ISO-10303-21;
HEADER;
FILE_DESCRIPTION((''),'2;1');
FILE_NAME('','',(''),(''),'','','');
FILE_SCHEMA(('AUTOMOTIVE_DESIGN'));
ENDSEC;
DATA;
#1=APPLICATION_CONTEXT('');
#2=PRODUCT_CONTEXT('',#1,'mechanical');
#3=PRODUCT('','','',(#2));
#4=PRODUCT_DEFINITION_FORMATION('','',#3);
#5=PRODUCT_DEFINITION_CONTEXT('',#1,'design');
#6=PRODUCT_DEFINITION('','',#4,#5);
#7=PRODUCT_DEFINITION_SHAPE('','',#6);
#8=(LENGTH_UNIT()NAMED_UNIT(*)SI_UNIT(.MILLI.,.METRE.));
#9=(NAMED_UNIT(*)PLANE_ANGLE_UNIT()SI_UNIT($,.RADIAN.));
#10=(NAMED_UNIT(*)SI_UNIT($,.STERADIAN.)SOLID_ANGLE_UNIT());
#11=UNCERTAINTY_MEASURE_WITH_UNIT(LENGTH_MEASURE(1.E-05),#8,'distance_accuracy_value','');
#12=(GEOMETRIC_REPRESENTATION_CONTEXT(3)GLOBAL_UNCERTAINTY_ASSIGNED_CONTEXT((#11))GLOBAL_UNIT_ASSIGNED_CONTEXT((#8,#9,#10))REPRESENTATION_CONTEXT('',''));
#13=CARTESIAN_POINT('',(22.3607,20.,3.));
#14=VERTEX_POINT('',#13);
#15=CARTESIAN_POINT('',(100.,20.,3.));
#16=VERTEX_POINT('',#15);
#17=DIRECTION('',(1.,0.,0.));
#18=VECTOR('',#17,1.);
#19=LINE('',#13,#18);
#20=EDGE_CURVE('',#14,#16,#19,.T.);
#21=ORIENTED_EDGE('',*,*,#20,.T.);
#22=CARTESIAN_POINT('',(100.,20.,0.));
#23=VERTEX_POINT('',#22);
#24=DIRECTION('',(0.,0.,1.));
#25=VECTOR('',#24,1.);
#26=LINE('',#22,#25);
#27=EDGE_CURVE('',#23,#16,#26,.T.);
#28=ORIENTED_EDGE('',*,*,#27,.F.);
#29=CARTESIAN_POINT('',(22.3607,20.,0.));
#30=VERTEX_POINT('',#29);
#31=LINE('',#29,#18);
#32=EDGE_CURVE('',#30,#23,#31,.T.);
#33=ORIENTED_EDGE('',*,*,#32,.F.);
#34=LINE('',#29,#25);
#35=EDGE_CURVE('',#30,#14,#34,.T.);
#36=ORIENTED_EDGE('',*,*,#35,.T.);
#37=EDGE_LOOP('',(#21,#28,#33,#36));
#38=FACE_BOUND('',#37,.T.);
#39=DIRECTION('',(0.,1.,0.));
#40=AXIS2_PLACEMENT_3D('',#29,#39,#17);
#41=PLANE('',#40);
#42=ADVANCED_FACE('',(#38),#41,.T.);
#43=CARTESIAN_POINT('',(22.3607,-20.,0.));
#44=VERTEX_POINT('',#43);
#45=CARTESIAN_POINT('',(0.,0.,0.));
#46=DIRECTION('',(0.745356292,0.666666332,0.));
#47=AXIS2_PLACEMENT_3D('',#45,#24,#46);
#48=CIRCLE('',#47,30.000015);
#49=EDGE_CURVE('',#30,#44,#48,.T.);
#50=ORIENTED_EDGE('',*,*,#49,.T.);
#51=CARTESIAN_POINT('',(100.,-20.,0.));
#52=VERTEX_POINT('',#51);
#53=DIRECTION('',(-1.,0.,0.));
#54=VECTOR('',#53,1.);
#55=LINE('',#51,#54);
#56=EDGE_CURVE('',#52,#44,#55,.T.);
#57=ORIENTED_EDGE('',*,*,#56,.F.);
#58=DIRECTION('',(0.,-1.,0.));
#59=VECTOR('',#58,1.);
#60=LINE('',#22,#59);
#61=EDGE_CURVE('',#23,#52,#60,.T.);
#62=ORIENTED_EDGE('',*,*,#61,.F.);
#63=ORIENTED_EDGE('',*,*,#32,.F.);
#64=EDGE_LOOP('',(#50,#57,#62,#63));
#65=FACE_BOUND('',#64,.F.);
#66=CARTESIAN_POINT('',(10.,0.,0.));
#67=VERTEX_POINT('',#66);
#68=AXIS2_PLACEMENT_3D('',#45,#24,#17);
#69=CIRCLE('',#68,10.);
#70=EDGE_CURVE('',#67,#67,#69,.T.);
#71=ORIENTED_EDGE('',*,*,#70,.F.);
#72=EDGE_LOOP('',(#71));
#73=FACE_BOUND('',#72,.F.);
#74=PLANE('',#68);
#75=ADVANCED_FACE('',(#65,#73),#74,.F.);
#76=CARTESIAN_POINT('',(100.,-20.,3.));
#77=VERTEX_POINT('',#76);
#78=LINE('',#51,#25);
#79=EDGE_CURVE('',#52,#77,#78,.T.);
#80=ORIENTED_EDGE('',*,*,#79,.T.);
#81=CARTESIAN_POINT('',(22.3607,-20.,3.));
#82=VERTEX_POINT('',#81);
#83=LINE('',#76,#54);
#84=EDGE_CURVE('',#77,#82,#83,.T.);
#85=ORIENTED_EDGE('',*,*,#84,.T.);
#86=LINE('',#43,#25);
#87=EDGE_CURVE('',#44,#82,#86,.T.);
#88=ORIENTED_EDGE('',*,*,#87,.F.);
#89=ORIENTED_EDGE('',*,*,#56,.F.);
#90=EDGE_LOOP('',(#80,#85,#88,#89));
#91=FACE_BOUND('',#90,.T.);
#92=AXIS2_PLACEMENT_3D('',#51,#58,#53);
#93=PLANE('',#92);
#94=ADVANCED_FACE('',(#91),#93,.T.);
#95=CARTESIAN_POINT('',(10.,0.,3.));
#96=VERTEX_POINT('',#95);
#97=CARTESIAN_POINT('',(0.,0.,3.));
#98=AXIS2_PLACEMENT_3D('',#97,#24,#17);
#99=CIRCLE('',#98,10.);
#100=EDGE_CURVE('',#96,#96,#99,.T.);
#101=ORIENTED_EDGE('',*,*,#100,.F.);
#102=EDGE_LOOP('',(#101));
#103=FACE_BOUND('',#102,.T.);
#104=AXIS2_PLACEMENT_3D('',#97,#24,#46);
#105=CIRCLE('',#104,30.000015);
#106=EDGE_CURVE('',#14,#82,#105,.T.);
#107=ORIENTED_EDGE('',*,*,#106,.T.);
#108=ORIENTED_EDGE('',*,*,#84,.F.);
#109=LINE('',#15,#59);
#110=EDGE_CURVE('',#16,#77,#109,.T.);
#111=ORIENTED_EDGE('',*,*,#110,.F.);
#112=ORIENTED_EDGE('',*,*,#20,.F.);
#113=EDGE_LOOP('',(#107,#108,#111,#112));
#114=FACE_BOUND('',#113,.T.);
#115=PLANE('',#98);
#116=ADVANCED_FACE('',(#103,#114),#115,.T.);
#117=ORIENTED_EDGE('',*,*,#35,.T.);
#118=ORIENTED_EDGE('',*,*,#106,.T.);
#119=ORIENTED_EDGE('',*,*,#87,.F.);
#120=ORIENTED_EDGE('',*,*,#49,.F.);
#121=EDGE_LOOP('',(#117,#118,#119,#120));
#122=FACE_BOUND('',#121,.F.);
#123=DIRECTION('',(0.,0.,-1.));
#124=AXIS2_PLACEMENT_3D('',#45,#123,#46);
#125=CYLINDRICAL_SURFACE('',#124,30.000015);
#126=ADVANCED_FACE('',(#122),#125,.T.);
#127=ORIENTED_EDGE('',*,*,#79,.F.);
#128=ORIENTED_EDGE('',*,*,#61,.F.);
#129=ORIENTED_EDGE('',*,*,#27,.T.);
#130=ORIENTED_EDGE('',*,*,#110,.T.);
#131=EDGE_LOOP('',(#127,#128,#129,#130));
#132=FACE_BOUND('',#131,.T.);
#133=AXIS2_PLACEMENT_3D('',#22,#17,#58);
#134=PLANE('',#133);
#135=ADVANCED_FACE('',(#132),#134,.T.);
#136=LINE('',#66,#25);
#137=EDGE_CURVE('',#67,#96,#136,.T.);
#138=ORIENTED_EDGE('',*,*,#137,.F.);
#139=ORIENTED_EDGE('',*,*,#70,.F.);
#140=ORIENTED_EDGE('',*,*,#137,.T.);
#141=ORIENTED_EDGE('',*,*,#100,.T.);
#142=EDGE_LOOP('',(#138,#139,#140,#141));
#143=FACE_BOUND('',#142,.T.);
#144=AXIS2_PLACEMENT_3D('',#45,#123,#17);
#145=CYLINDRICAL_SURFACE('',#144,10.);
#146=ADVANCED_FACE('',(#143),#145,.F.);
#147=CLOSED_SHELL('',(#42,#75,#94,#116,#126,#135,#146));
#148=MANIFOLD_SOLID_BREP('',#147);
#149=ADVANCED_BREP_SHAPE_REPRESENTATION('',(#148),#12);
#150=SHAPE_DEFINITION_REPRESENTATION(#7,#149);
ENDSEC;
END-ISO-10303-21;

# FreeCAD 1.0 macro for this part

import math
import FreeCAD as App
import Part
import Sketcher

doc = App.newDocument("Part")
body = doc.addObject("PartDesign::Body", "Body")

# Sketch on XY plane
sketch1 = body.newObject("Sketcher::SketchObject", "Sketch")
sketch1.AttachmentSupport = (doc.getObject("XY_Plane"), [""])
sketch1.MapMode = "FlatFace"
sketch1.addGeometry([
    Part.ArcOfCircle(Part.Circle(App.Vector(0, 0, 0), App.Vector(0, 0, 1), 30), math.radians(42), math.radians(318)),  # 0
    Part.LineSegment(App.Vector(22, -20, 0), App.Vector(100, -20, 0)),  # 1
    Part.LineSegment(App.Vector(100, -20, 0), App.Vector(100, 20, 0)),  # 2
    Part.LineSegment(App.Vector(100, 20, 0), App.Vector(22, 20, 0)),  # 3
    Part.Circle(App.Vector(0, 0, 0), App.Vector(0, 0, 1), 10),  # 4
], False)
sketch1.addConstraint([
    Sketcher.Constraint("Coincident", 0, 2, 1, 1),
    Sketcher.Constraint("Coincident", 1, 2, 2, 1),
    Sketcher.Constraint("Coincident", 2, 2, 3, 1),
    Sketcher.Constraint("Coincident", 3, 2, 0, 1),
    Sketcher.Constraint("Horizontal", 1),
    Sketcher.Constraint("Vertical", 2),
    Sketcher.Constraint("Horizontal", 3),
    Sketcher.Constraint("Coincident", 0, 3, -1, 1),
    Sketcher.Constraint("Coincident", 4, 3, -1, 1),
    Sketcher.Constraint("Vertical", 0, 2, 3, 2),
    Sketcher.Constraint("Diameter", 4, 20.0),
    Sketcher.Constraint("Radius", 0, 30.0),
    Sketcher.Constraint("DistanceY", 2, 1, 2, 2, 40.0),
    Sketcher.Constraint("DistanceX", -1, 1, 1, 2, 100.0),
])
pad1 = body.newObject("PartDesign::Pad", "Pad")
pad1.Profile = sketch1
pad1.Length = 3

doc.recompute()
